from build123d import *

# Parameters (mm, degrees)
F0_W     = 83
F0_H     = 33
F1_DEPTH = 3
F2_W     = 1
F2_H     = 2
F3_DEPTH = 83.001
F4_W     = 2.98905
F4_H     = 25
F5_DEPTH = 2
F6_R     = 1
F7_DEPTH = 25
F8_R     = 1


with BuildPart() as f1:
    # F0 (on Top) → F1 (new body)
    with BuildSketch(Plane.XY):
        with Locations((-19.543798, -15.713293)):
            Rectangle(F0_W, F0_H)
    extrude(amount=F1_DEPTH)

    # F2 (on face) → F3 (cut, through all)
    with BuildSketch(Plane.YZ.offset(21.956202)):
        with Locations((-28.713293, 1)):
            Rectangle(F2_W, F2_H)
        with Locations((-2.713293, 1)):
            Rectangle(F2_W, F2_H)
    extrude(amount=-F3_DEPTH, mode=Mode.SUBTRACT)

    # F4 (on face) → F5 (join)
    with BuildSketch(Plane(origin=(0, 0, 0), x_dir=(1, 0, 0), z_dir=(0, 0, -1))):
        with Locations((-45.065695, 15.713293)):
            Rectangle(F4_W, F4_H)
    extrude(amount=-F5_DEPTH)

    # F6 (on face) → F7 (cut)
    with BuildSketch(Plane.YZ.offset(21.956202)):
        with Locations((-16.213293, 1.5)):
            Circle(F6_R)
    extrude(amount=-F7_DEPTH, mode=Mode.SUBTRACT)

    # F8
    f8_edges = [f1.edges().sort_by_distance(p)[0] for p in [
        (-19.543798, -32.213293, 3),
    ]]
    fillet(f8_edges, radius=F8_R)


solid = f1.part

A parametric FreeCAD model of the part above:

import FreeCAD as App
import Part
import Sketcher


def edges_at(feature, points):
    """Names of the edges that pass closest to the given points."""
    edges = feature.Shape.Edges
    near = lambda p: min(range(len(edges)), key=lambda i: edges[i].distToShape(Part.Vertex(*p))[0])
    return sorted({f"Edge{near(p) + 1}" for p in points})

doc = App.newDocument("Part")
body = doc.addObject("PartDesign::Body", "Body")

sketch1 = body.newObject("Sketcher::SketchObject", "Sketch")
sketch1.AttachmentSupport = (doc.getObject("XY_Plane"), [""])
sketch1.MapMode = "FlatFace"
sketch1.addGeometry(Part.LineSegment(App.Vector(-61.043798, 0.786707, 0), App.Vector(-61.043798, -32.213293, 0)), False)
sketch1.addGeometry(Part.LineSegment(App.Vector(-61.043798, -32.213293, 0), App.Vector(21.956202, -32.213293, 0)), False)
sketch1.addGeometry(Part.LineSegment(App.Vector(21.956202, -32.213293, 0), App.Vector(21.956202, 0.786707, 0)), False)
sketch1.addGeometry(Part.LineSegment(App.Vector(21.956202, 0.786707, 0), App.Vector(-61.043798, 0.786707, 0)), False)
sketch1.addConstraint(Sketcher.Constraint("Coincident", 0, 2, 1, 1))
sketch1.addConstraint(Sketcher.Constraint("Coincident", 1, 2, 2, 1))
sketch1.addConstraint(Sketcher.Constraint("Coincident", 2, 2, 3, 1))
sketch1.addConstraint(Sketcher.Constraint("Coincident", 3, 2, 0, 1))
sketch1.addConstraint(Sketcher.Constraint("Vertical", 0))
sketch1.addConstraint(Sketcher.Constraint("Horizontal", 1))
sketch1.addConstraint(Sketcher.Constraint("Vertical", 2))
sketch1.addConstraint(Sketcher.Constraint("Horizontal", 3))
sketch1.addConstraint(Sketcher.Constraint("DistanceX", 1, 1, 1, 2, 83.0))
sketch1.addConstraint(Sketcher.Constraint("DistanceY", 0, 2, 0, 1, 33.0))
sketch1.addConstraint(Sketcher.Constraint("DistanceX", 0, 2, -1, 1, 61.043798))
sketch1.addConstraint(Sketcher.Constraint("DistanceY", 0, 2, -1, 1, 32.213293))
pad1 = body.newObject("PartDesign::Pad", "Pad")
pad1.Profile = sketch1
pad1.Length = 3

sketch2 = body.newObject("Sketcher::SketchObject", "Sketch001")
sketch2.AttachmentSupport = (doc.getObject("YZ_Plane"), [""])
sketch2.MapMode = "FlatFace"
sketch2.AttachmentOffset = App.Placement(App.Vector(0, 0, 21.956202), App.Rotation())
sketch2.addGeometry(Part.LineSegment(App.Vector(-29.213293, 2, 0), App.Vector(-29.213293, 0, 0)), False)
sketch2.addGeometry(Part.LineSegment(App.Vector(-29.213293, 0, 0), App.Vector(-28.213293, 0, 0)), False)
sketch2.addGeometry(Part.LineSegment(App.Vector(-28.213293, 0, 0), App.Vector(-28.213293, 2, 0)), False)
sketch2.addGeometry(Part.LineSegment(App.Vector(-28.213293, 2, 0), App.Vector(-29.213293, 2, 0)), False)
sketch2.addGeometry(Part.LineSegment(App.Vector(-3.213293, 2, 0), App.Vector(-3.213293, 0, 0)), False)
sketch2.addGeometry(Part.LineSegment(App.Vector(-3.213293, 0, 0), App.Vector(-2.213293, 0, 0)), False)
sketch2.addGeometry(Part.LineSegment(App.Vector(-2.213293, 0, 0), App.Vector(-2.213293, 2, 0)), False)
sketch2.addGeometry(Part.LineSegment(App.Vector(-2.213293, 2, 0), App.Vector(-3.213293, 2, 0)), False)
sketch2.addConstraint(Sketcher.Constraint("Coincident", 0, 2, 1, 1))
sketch2.addConstraint(Sketcher.Constraint("Coincident", 1, 2, 2, 1))
sketch2.addConstraint(Sketcher.Constraint("Coincident", 2, 2, 3, 1))
sketch2.addConstraint(Sketcher.Constraint("Coincident", 3, 2, 0, 1))
sketch2.addConstraint(Sketcher.Constraint("Coincident", 4, 2, 5, 1))
sketch2.addConstraint(Sketcher.Constraint("Coincident", 5, 2, 6, 1))
sketch2.addConstraint(Sketcher.Constraint("Coincident", 6, 2, 7, 1))
sketch2.addConstraint(Sketcher.Constraint("Coincident", 7, 2, 4, 1))
sketch2.addConstraint(Sketcher.Constraint("Vertical", 0))
sketch2.addConstraint(Sketcher.Constraint("Horizontal", 1))
sketch2.addConstraint(Sketcher.Constraint("Vertical", 2))
sketch2.addConstraint(Sketcher.Constraint("Horizontal", 3))
sketch2.addConstraint(Sketcher.Constraint("Vertical", 4))
sketch2.addConstraint(Sketcher.Constraint("Horizontal", 5))
sketch2.addConstraint(Sketcher.Constraint("Vertical", 6))
sketch2.addConstraint(Sketcher.Constraint("Horizontal", 7))
sketch2.addConstraint(Sketcher.Constraint("PointOnObject", 0, 2, -1))
sketch2.addConstraint(Sketcher.Constraint("PointOnObject", 4, 2, -1))
sketch2.addConstraint(Sketcher.Constraint("Horizontal", 3, 2, 6, 2))
sketch2.addConstraint(Sketcher.Constraint("Equal", 3, 5))
sketch2.addConstraint(Sketcher.Constraint("DistanceX", 1, 1, 1, 2, 1.0))
sketch2.addConstraint(Sketcher.Constraint("DistanceY", 0, 2, 0, 1, 2.0))
sketch2.addConstraint(Sketcher.Constraint("DistanceX", 1, 2, 4, 2, 25.0))
sketch2.addConstraint(Sketcher.Constraint("DistanceX", 0, 2, -1, 1, 29.213293))
pocket1 = body.newObject("PartDesign::Pocket", "Pocket")
pocket1.Profile = sketch2
pocket1.Type = "ThroughAll"

sketch3 = body.newObject("Sketcher::SketchObject", "Sketch002")
sketch3.AttachmentSupport = (doc.getObject("XY_Plane"), [""])
sketch3.MapMode = "FlatFace"
sketch3.addGeometry(Part.LineSegment(App.Vector(-46.56022, -28.213293, 0), App.Vector(-46.56022, -3.213293, 0)), False)
sketch3.addGeometry(Part.LineSegment(App.Vector(-46.56022, -3.213293, 0), App.Vector(-43.57117, -3.213293, 0)), False)
sketch3.addGeometry(Part.LineSegment(App.Vector(-43.57117, -3.213293, 0), App.Vector(-43.57117, -28.213293, 0)), False)
sketch3.addGeometry(Part.LineSegment(App.Vector(-43.57117, -28.213293, 0), App.Vector(-46.56022, -28.213293, 0)), False)
sketch3.addConstraint(Sketcher.Constraint("Coincident", 0, 2, 1, 1))
sketch3.addConstraint(Sketcher.Constraint("Coincident", 1, 2, 2, 1))
sketch3.addConstraint(Sketcher.Constraint("Coincident", 2, 2, 3, 1))
sketch3.addConstraint(Sketcher.Constraint("Coincident", 3, 2, 0, 1))
sketch3.addConstraint(Sketcher.Constraint("Vertical", 0))
sketch3.addConstraint(Sketcher.Constraint("Horizontal", 1))
sketch3.addConstraint(Sketcher.Constraint("Vertical", 2))
sketch3.addConstraint(Sketcher.Constraint("Horizontal", 3))
sketch3.addConstraint(Sketcher.Constraint("DistanceY", 0, 1, 0, 2, 25.0))
sketch3.addConstraint(Sketcher.Constraint("DistanceX", 1, 1, 1, 2, 2.98905))
sketch3.addConstraint(Sketcher.Constraint("DistanceX", 0, 2, -1, 1, 46.56022))
sketch3.addConstraint(Sketcher.Constraint("DistanceY", 0, 2, -1, 1, 3.213293))
pad2 = body.newObject("PartDesign::Pad", "Pad001")
pad2.Profile = sketch3
pad2.Length = 2

sketch4 = body.newObject("Sketcher::SketchObject", "Sketch003")
sketch4.AttachmentSupport = (doc.getObject("YZ_Plane"), [""])
sketch4.MapMode = "FlatFace"
sketch4.AttachmentOffset = App.Placement(App.Vector(0, 0, 21.956202), App.Rotation())
sketch4.addGeometry(Part.Circle(App.Vector(-16.213293, 1.5, 0), App.Vector(0, 0, 1), 1), False)
sketch4.addConstraint(Sketcher.Constraint("Diameter", 0, 2.0))
sketch4.addConstraint(Sketcher.Constraint("DistanceY", -1, 1, 0, 3, 1.5))
sketch4.addConstraint(Sketcher.Constraint("DistanceX", 0, 3, -1, 1, 16.213293))
pocket2 = body.newObject("PartDesign::Pocket", "Pocket001")
pocket2.Profile = sketch4
pocket2.Length = 25
doc.recompute()

fillet = body.newObject("PartDesign::Fillet", "Fillet")
fillet.Base = (pocket2, edges_at(pocket2, [(-19.544, -32.213, 3)]))
fillet.Radius = 1

doc.recompute()
